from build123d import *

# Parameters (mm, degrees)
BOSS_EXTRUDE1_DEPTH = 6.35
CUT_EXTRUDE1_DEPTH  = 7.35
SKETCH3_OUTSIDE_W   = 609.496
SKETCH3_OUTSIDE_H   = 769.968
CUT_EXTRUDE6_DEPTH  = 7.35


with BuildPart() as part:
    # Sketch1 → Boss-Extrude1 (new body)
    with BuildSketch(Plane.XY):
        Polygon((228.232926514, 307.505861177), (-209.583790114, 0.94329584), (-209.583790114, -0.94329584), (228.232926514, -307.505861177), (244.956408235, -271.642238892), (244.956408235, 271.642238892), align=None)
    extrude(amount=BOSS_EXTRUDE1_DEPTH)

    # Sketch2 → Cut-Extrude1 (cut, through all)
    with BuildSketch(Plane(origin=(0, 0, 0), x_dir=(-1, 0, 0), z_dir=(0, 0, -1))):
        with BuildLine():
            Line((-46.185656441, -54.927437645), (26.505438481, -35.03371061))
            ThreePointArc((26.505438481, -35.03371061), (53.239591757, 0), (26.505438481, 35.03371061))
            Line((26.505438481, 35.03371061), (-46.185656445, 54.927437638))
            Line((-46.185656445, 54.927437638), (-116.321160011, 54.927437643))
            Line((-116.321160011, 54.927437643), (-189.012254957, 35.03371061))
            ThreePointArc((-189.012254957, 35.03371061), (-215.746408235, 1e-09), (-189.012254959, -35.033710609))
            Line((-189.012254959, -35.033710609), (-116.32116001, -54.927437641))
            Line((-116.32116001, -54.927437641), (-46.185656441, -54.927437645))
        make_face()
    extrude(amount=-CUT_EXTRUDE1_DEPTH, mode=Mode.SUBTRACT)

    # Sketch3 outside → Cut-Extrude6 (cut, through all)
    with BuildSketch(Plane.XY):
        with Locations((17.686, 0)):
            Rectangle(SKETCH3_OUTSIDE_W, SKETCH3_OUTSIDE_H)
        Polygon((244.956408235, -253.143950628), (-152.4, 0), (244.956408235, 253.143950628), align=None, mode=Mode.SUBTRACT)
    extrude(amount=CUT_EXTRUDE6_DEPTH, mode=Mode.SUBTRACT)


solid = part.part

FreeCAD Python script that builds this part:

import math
import FreeCAD as App
import Part
import Sketcher
Q = App.Units.Quantity

doc = App.newDocument("Part")
body = doc.addObject("PartDesign::Body", "Body")

sketch1 = body.newObject("Sketcher::SketchObject", "Sketch")
sketch1.AttachmentSupport = (doc.getObject("XY_Plane"), [""])
sketch1.MapMode = "FlatFace"
sketch1.addGeometry([
    Part.LineSegment(App.Vector(228.2, 307.5, 0), App.Vector(-209.6, 0.9, 0)),
    Part.LineSegment(App.Vector(-209.6, 0.9, 0), App.Vector(-209.6, -0.9, 0)),
    Part.LineSegment(App.Vector(-209.6, -0.9, 0), App.Vector(228.2, -307.5, 0)),
    Part.LineSegment(App.Vector(228.2, -307.5, 0), App.Vector(245, -271.6, 0)),
    Part.LineSegment(App.Vector(245, -271.6, 0), App.Vector(245, 271.6, 0)),
    Part.LineSegment(App.Vector(245, 271.6, 0), App.Vector(228.2, 307.5, 0)),
], False)
sketch1.addConstraint([
    Sketcher.Constraint("Coincident", 0, 2, 1, 1),
    Sketcher.Constraint("Coincident", 1, 2, 2, 1),
    Sketcher.Constraint("Coincident", 2, 2, 3, 1),
    Sketcher.Constraint("Coincident", 3, 2, 4, 1),
    Sketcher.Constraint("Coincident", 4, 2, 5, 1),
    Sketcher.Constraint("Coincident", 5, 2, 0, 1),
    Sketcher.Constraint("Vertical", 1),
    Sketcher.Constraint("Vertical", 4),
    Sketcher.Constraint("Symmetric", 2, 2, 5, 2, -1),
    Sketcher.Constraint("Equal", 0, 2),
    Sketcher.Constraint("Equal", 3, 5),
    Sketcher.Constraint("Angle", 0, Q("-145 deg")),
    Sketcher.Constraint("Angle", 3, Q("65 deg")),
    Sketcher.Constraint("DistanceY", 1, 2, 1, 1, Q("1.886592 mm")),
    Sketcher.Constraint("DistanceX", 1, 2, 3, 2, Q("454.540198 mm")),
    Sketcher.Constraint("DistanceY", 2, 2, 4, 2, Q("579.1481 mm")),
    Sketcher.Constraint("DistanceX", 0, 2, -1, 1, Q("209.58379 mm")),
])
pad1 = body.newObject("PartDesign::Pad", "Pad")
pad1.Profile = sketch1
pad1.Length = Q("0.25 in")

sketch2 = body.newObject("Sketcher::SketchObject", "Sketch001")
sketch2.AttachmentSupport = (doc.getObject("XY_Plane"), [""])
sketch2.MapMode = "FlatFace"
sketch2.addGeometry([
    Part.LineSegment(App.Vector(46, -55, 0), App.Vector(-27, -35, 0)),
    Part.ArcOfCircle(Part.Circle(App.Vector(-17, 0, 0), App.Vector(0, 0, 1), 36), math.radians(105), math.radians(255)),
    Part.LineSegment(App.Vector(-27, 35, 0), App.Vector(46, 55, 0)),
    Part.LineSegment(App.Vector(46, 55, 0), App.Vector(116, 55, 0)),
    Part.LineSegment(App.Vector(116, 55, 0), App.Vector(189, 35, 0)),
    Part.ArcOfCircle(Part.Circle(App.Vector(179, 0, 0), App.Vector(0, 0, 1), 36), math.radians(-75), math.radians(75)),
    Part.LineSegment(App.Vector(189, -35, 0), App.Vector(116, -55, 0)),
    Part.LineSegment(App.Vector(116, -55, 0), App.Vector(46, -55, 0)),
], False)
sketch2.addConstraint([
    Sketcher.Constraint("Tangent", 0, 2, 1, 2),
    Sketcher.Constraint("Tangent", 1, 1, 2, 1),
    Sketcher.Constraint("Coincident", 2, 2, 3, 1),
    Sketcher.Constraint("Coincident", 3, 2, 4, 1),
    Sketcher.Constraint("Tangent", 4, 2, 5, 2),
    Sketcher.Constraint("Tangent", 5, 1, 6, 1),
    Sketcher.Constraint("Coincident", 6, 2, 7, 1),
    Sketcher.Constraint("Coincident", 7, 2, 0, 1),
    Sketcher.Constraint("Horizontal", 3),
    Sketcher.Constraint("Horizontal", 7),
    Sketcher.Constraint("Equal", 1, 5),
    Sketcher.Constraint("Symmetric", 0, 2, 1, 1, -1),
    Sketcher.Constraint("Symmetric", 4, 2, 5, 1, -1),
    Sketcher.Constraint("Parallel", 0, 4),
    Sketcher.Constraint("Vertical", 3, 2, 6, 2),
    Sketcher.Constraint("Radius", 1, Q("1.43 in")),
    Sketcher.Constraint("DistanceX", 1, 3, 5, 3, Q("7.73 in")),
    Sketcher.Constraint("DistanceX", 1, 1, 3, 2, Q("142.826598 mm")),
    Sketcher.Constraint("DistanceX", 3, 1, 3, 2, Q("70.135504 mm")),
    Sketcher.Constraint("DistanceX", 1, 3, -1, 1, Q("16.917592 mm")),
])
pocket1 = body.newObject("PartDesign::Pocket", "Pocket")
pocket1.Profile = sketch2
pocket1.Type = "ThroughAll"
pocket1.Reversed = True

sketch3 = body.newObject("Sketcher::SketchObject", "Sketch002")
sketch3.AttachmentSupport = (doc.getObject("XY_Plane"), [""])
sketch3.MapMode = "FlatFace"
sketch3.addGeometry([
    Part.LineSegment(App.Vector(-287, 385, 0), App.Vector(-287, -385, 0)),
    Part.LineSegment(App.Vector(-287, -385, 0), App.Vector(322, -385, 0)),
    Part.LineSegment(App.Vector(322, -385, 0), App.Vector(322, 385, 0)),
    Part.LineSegment(App.Vector(322, 385, 0), App.Vector(-287, 385, 0)),
    Part.LineSegment(App.Vector(245, 253, 0), App.Vector(245, -253, 0)),
    Part.LineSegment(App.Vector(245, -253, 0), App.Vector(-152, 0, 0)),
    Part.LineSegment(App.Vector(-152, 0, 0), App.Vector(245, 253, 0)),
], False)
sketch3.addConstraint([
    Sketcher.Constraint("Coincident", 0, 2, 1, 1),
    Sketcher.Constraint("Coincident", 1, 2, 2, 1),
    Sketcher.Constraint("Coincident", 2, 2, 3, 1),
    Sketcher.Constraint("Coincident", 3, 2, 0, 1),
    Sketcher.Constraint("Coincident", 4, 2, 5, 1),
    Sketcher.Constraint("Coincident", 5, 2, 6, 1),
    Sketcher.Constraint("Coincident", 6, 2, 4, 1),
    Sketcher.Constraint("Vertical", 0),
    Sketcher.Constraint("Horizontal", 1),
    Sketcher.Constraint("Vertical", 2),
    Sketcher.Constraint("Horizontal", 3),
    Sketcher.Constraint("Vertical", 4),
    Sketcher.Constraint("PointOnObject", 5, 2, -1),
    Sketcher.Constraint("Equal", 5, 6),
    Sketcher.Constraint("DistanceX", 5, 2, -1, 1, Q("6 in")),
    Sketcher.Constraint("Angle", 5, Q("147.5 deg")),
    Sketcher.Constraint("DistanceX", 1, 1, 1, 2, Q("609.496 mm")),
    Sketcher.Constraint("DistanceY", 0, 2, 0, 1, Q("769.968 mm")),
    Sketcher.Constraint("DistanceY", 4, 2, 4, 1, Q("506.287901 mm")),
    Sketcher.Constraint("DistanceX", 0, 2, -1, 1, Q("287.062 mm")),
    Sketcher.Constraint("DistanceY", 0, 2, -1, 1, Q("384.984 mm")),
])
pocket2 = body.newObject("PartDesign::Pocket", "Pocket001")
pocket2.Profile = sketch3
pocket2.Type = "ThroughAll"
pocket2.Reversed = True

doc.recompute()
